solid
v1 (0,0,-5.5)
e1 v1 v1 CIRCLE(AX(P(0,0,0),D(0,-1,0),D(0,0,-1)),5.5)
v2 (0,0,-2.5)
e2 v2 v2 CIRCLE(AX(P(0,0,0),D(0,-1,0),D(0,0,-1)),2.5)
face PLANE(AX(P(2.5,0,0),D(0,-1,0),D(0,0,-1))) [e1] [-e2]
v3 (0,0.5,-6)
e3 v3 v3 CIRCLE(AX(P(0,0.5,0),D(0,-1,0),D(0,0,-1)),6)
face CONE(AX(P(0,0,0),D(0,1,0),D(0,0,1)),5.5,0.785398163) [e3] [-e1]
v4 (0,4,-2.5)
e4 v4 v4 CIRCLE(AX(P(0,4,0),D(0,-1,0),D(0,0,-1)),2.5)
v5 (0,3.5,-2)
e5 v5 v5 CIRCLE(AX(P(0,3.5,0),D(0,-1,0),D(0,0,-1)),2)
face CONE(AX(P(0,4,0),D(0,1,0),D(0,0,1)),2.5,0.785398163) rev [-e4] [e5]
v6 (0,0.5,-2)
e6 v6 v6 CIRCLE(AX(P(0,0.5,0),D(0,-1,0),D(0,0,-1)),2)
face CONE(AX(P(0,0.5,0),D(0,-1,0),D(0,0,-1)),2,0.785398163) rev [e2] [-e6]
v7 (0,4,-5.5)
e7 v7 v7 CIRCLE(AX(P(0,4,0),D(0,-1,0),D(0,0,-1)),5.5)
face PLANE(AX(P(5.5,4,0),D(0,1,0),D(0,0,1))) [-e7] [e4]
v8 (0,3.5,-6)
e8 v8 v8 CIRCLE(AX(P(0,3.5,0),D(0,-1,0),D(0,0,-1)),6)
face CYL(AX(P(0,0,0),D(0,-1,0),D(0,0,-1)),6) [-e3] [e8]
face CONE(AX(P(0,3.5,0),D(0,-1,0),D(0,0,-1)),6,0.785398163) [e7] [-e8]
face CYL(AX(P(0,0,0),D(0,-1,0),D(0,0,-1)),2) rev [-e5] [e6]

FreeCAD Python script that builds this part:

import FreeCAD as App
import Part
import Sketcher


def add_polygon(sketch, points):
    """Adds a closed chain of lines whose ends are joined by coincident constraints."""
    first, n = sketch.GeometryCount, len(points)
    for a, b in zip(points, points[1:] + points[:1]):
        sketch.addGeometry(Part.LineSegment(App.Vector(*a, 0), App.Vector(*b, 0)), False)
    for i in range(n):
        sketch.addConstraint(Sketcher.Constraint("Coincident", first + i, 2, first + (i + 1) % n, 1))

doc = App.newDocument("Part")
body = doc.addObject("PartDesign::Body", "Body")

sketch1 = body.newObject("Sketcher::SketchObject", "Sketch")
sketch1.AttachmentSupport = (doc.getObject("XY_Plane"), [""])
sketch1.MapMode = "FlatFace"
add_polygon(sketch1, [(2.5, 0), (5.5, 0), (6, 0.5), (6, 3.5), (5.5, 4), (2.5, 4), (2, 3.5), (2, 0.5)])
sketch1.addConstraint(Sketcher.Constraint("Horizontal", 0))
sketch1.addConstraint(Sketcher.Constraint("Vertical", 2))
sketch1.addConstraint(Sketcher.Constraint("Horizontal", 4))
sketch1.addConstraint(Sketcher.Constraint("Vertical", 6))
sketch1.addConstraint(Sketcher.Constraint("PointOnObject", 0, 2, -1))
sketch1.addConstraint(Sketcher.Constraint("Perpendicular", 1, 3))
sketch1.addConstraint(Sketcher.Constraint("Perpendicular", 3, 5))
sketch1.addConstraint(Sketcher.Constraint("Perpendicular", 5, 7))
sketch1.addConstraint(Sketcher.Constraint("Horizontal", 2, 2, 5, 2))
sketch1.addConstraint(Sketcher.Constraint("Horizontal", 1, 2, 6, 2))
sketch1.addConstraint(Sketcher.Constraint("Vertical", 0, 2, 3, 2))
sketch1.addConstraint(Sketcher.Constraint("Vertical", 4, 2, 7, 2))
sketch1.addConstraint(Sketcher.Constraint("Equal", 4, 2))
sketch1.addConstraint(Sketcher.Constraint("DistanceX", 0, 1, 0, 2, 3.0))
sketch1.addConstraint(Sketcher.Constraint("DistanceX", -1, 1, 1, 2, 6.0))
sketch1.addConstraint(Sketcher.Constraint("DistanceY", -1, 1, 3, 2, 4.0))
revolution = body.newObject("PartDesign::Revolution", "Revolution")
revolution.Profile = sketch1
revolution.ReferenceAxis = (sketch1, ["V_Axis"])
revolution.Angle = 360

doc.recompute()
